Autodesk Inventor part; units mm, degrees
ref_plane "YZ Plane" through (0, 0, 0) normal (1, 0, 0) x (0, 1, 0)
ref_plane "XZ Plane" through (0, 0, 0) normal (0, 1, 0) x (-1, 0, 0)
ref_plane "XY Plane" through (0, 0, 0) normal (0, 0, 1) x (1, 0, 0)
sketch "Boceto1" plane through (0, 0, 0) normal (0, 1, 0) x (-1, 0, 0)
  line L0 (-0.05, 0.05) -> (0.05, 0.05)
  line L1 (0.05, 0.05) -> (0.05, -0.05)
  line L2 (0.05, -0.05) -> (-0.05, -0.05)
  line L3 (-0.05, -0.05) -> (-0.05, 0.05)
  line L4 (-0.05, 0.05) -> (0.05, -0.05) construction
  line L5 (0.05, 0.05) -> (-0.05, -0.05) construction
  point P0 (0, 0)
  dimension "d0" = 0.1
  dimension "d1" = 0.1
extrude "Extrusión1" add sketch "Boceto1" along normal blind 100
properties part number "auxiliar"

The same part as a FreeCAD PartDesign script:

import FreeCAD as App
import Part
import Sketcher

V = App.Vector
Q = App.Units.Quantity

doc = App.newDocument("Part")
body = doc.addObject("PartDesign::Body", "Body")

sketch1 = body.newObject("Sketcher::SketchObject", "Sketch")
sketch1.AttachmentSupport = (doc.getObject("XZ_Plane"), [""])
sketch1.MapMode = "FlatFace"
sketch1.addGeometry(Part.LineSegment(V(-0.05, 0.05, 0), V(0.05, 0.05, 0)), False)
sketch1.addGeometry(Part.LineSegment(V(0.05, 0.05, 0), V(0.05, -0.05, 0)), False)
sketch1.addGeometry(Part.LineSegment(V(0.05, -0.05, 0), V(-0.05, -0.05, 0)), False)
sketch1.addGeometry(Part.LineSegment(V(-0.05, -0.05, 0), V(-0.05, 0.05, 0)), False)
sketch1.addConstraint(Sketcher.Constraint("Coincident", 0, 2, 1, 1))
sketch1.addConstraint(Sketcher.Constraint("Coincident", 1, 2, 2, 1))
sketch1.addConstraint(Sketcher.Constraint("Coincident", 2, 2, 3, 1))
sketch1.addConstraint(Sketcher.Constraint("Coincident", 3, 2, 0, 1))
sketch1.addConstraint(Sketcher.Constraint("Horizontal", 0))
sketch1.addConstraint(Sketcher.Constraint("Vertical", 1))
sketch1.addConstraint(Sketcher.Constraint("Horizontal", 2))
sketch1.addConstraint(Sketcher.Constraint("Vertical", 3))
sketch1.addConstraint(Sketcher.Constraint("Symmetric", 0, 2, 2, 2, -1, 1))
sketch1.addConstraint(Sketcher.Constraint("Equal", 2, 1))
sketch1.addConstraint(Sketcher.Constraint("DistanceX", 0, 1, 0, 2, Q("0.1 mm")))
pad1 = body.newObject("PartDesign::Pad", "Pad")
pad1.Profile = sketch1
pad1.Length = 100
pad1.Reversed = True

doc.recompute()
